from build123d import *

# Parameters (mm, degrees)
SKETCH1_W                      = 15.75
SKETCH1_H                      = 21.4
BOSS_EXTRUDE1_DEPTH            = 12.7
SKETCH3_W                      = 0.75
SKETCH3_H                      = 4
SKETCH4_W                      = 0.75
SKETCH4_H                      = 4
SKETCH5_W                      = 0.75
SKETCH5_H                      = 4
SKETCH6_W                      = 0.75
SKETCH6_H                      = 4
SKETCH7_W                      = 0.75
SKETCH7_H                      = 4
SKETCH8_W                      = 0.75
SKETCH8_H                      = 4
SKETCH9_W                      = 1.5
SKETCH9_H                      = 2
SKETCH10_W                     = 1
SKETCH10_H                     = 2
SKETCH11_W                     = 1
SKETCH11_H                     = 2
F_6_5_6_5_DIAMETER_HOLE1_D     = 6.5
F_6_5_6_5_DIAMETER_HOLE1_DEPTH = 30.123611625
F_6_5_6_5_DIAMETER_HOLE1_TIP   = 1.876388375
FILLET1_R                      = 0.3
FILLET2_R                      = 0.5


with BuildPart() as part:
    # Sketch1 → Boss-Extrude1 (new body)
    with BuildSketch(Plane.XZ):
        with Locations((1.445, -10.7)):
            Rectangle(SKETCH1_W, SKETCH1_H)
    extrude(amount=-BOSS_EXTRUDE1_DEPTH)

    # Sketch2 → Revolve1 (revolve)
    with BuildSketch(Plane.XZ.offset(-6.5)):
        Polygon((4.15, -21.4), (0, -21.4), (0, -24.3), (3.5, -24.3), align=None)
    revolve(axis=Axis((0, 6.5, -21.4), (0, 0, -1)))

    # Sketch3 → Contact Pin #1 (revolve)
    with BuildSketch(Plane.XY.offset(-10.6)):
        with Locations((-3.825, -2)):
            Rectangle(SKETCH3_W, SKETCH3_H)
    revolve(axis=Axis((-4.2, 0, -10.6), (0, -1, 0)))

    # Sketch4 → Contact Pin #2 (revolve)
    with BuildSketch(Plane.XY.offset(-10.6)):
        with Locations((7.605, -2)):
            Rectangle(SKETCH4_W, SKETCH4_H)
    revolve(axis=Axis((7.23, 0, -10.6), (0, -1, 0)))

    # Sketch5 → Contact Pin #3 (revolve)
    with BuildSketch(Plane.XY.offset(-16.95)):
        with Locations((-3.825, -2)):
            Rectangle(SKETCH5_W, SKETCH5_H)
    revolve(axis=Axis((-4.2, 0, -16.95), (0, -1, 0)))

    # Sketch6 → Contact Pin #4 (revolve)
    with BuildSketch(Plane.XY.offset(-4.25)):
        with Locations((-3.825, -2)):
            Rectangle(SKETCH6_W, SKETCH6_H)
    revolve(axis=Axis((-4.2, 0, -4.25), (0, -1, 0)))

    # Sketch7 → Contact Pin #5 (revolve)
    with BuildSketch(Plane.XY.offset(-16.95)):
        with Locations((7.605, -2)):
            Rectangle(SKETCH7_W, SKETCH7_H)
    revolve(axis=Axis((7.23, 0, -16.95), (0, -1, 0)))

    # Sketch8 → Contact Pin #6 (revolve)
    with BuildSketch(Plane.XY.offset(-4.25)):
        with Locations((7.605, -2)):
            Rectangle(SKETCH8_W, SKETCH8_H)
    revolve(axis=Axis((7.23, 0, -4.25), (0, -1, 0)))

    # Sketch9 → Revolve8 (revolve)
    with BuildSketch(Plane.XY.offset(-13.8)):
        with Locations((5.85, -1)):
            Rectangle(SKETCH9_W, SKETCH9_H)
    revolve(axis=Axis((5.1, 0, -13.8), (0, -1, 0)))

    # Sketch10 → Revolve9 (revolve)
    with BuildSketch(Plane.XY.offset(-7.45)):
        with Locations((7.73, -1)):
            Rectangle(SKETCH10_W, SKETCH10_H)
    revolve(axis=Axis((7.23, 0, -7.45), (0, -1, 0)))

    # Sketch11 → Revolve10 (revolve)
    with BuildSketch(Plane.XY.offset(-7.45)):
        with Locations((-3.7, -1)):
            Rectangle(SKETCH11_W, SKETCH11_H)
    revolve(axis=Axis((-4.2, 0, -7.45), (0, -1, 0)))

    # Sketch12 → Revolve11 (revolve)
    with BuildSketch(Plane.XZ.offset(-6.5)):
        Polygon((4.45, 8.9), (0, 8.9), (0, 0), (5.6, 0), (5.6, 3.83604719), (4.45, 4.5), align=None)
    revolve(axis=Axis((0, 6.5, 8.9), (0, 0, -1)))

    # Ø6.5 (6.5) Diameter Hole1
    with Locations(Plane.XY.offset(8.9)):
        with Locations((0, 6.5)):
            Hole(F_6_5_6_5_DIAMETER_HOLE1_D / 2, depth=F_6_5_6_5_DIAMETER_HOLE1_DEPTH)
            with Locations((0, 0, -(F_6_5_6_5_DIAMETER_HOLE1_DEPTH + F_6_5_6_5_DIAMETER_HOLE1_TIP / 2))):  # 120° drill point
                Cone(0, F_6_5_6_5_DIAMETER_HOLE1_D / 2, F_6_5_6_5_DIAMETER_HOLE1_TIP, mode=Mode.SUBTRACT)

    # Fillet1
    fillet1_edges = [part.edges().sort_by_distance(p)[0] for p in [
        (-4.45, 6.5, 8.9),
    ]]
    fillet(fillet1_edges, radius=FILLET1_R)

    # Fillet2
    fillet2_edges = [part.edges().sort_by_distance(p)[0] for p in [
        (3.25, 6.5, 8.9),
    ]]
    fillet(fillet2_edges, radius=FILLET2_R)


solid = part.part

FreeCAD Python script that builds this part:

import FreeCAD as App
import Part
import Sketcher
from FreeCAD import Vector
Q = App.Units.Quantity


def edges_at(feature, points):
    """Names of the edges that pass closest to the given points."""
    edges = feature.Shape.Edges
    near = lambda p: min(range(len(edges)), key=lambda i: edges[i].distToShape(Part.Vertex(*p))[0])
    return sorted({f"Edge{near(p) + 1}" for p in points})


def add_polygon(sketch, points):
    """Adds a closed chain of lines whose ends are joined by coincident constraints."""
    first, n = sketch.GeometryCount, len(points)
    for a, b in zip(points, points[1:] + points[:1]):
        sketch.addGeometry(Part.LineSegment(App.Vector(*a, 0), App.Vector(*b, 0)), False)
    for i in range(n):
        sketch.addConstraint(Sketcher.Constraint("Coincident", first + i, 2, first + (i + 1) % n, 1))

doc = App.newDocument("Part")
params = doc.addObject("Spreadsheet::Sheet", "Params")
for row, (alias, value) in enumerate([
    ("sketch1_height", "21.4 mm"),
    ("sketch1_width", "15.75 mm"),
    ("pad1_length", "12.7 mm"),
    ("sketch2_width", "3.5 mm"),
    ("sketch2_height", "2.9 mm"),
    ("sketch2_width2", "4.15 mm"),
    ("revolution_angle", "360 deg"),
    ("sketch3_height", "4 mm"),
    ("sketch3_width", "0.75 mm"),
    ("revolution2_angle", "360 deg"),
    ("sketch4_height", "4 mm"),
    ("sketch4_width", "0.75 mm"),
    ("revolution3_angle", "360 deg"),
    ("sketch5_height", "4 mm"),
    ("sketch5_width", "0.75 mm"),
    ("revolution4_angle", "360 deg"),
    ("sketch6_height", "4 mm"),
    ("sketch6_width", "0.75 mm"),
    ("revolution5_angle", "360 deg"),
    ("sketch7_height", "4 mm"),
    ("sketch7_width", "0.75 mm"),
    ("revolution6_angle", "360 deg"),
    ("sketch8_height", "4 mm"),
    ("sketch8_width", "0.75 mm"),
    ("revolution7_angle", "360 deg"),
    ("sketch9_height", "2 mm"),
    ("sketch9_width", "1.5 mm"),
    ("revolution8_angle", "360 deg"),
    ("sketch10_width", "1 mm"),
    ("sketch10_height", "2 mm"),
    ("revolution9_angle", "360 deg"),
    ("sketch11_width", "1 mm"),
    ("sketch11_height", "2 mm"),
    ("revolution10_angle", "360 deg"),
    ("sketch12_width", "5.6 mm"),
    ("sketch12_height", "8.9 mm"),
    ("sketch12_height2", "4.4 mm"),
    ("sketch12_width2", "4.45 mm"),
    ("revolution11_angle", "360 deg"),
    ("sketch13_diameter", "6.5 mm"),
    ("hole_diameter", "6.5 mm"),
    ("hole_depth", "30.123612 mm"),
    ("fillet_radius", "0.3 mm"),
    ("fillet2_radius", "0.5 mm"),
], start=1):
    params.set(f"A{row}", alias)
    params.set(f"B{row}", "=" + value)
    params.setAlias(f"B{row}", alias)

body = doc.addObject("PartDesign::Body", "Body")

sketch1 = body.newObject("Sketcher::SketchObject", "Sketch")
sketch1.AttachmentSupport = (doc.getObject("XZ_Plane"), [""])
sketch1.MapMode = "FlatFace"
add_polygon(sketch1, [(-6, 0), (-6, -21), (9, -21), (9, 0)])
sketch1.addConstraint([
    Sketcher.Constraint("Vertical", 0),
    Sketcher.Constraint("Horizontal", 1),
    Sketcher.Constraint("Vertical", 2),
    Sketcher.Constraint("Horizontal", 3),
    Sketcher.Constraint("PointOnObject", 2, 2, -1),
    Sketcher.Constraint("DistanceY", 0, 2, 0, 1, 21.4),
    Sketcher.Constraint("DistanceX", 1, 1, 1, 2, 15.75),
    Sketcher.Constraint("DistanceX", 0, 2, -1, 1, 6.43),
])
sketch1.setExpression("Constraints[9]", "Params.sketch1_height")
sketch1.setExpression("Constraints[10]", "Params.sketch1_width")
pad1 = body.newObject("PartDesign::Pad", "Pad")
pad1.Profile = sketch1
pad1.setExpression("Length", "Params.pad1_length")
pad1.Reversed = True

sketch2 = body.newObject("Sketcher::SketchObject", "Sketch001")
sketch2.AttachmentSupport = (doc.getObject("XZ_Plane"), [""])
sketch2.MapMode = "FlatFace"
sketch2.AttachmentOffset = App.Placement(Vector(0, 0, -6.5), App.Rotation())
add_polygon(sketch2, [(4.2, -21.4), (0, -21.4), (0, -24.3), (3.5, -24.3)])
sketch2.addConstraint([
    Sketcher.Constraint("Horizontal", 0),
    Sketcher.Constraint("Vertical", 1),
    Sketcher.Constraint("Horizontal", 2),
    Sketcher.Constraint("PointOnObject", 0, 2, -2),
    Sketcher.Constraint("DistanceX", 2, 1, 2, 2, 3.5),
    Sketcher.Constraint("DistanceY", 1, 2, 1, 1, 2.9),
    Sketcher.Constraint("DistanceX", 0, 2, 0, 1, 4.15),
    Sketcher.Constraint("DistanceY", 0, 2, -1, 1, 21.4),
])
sketch2.setExpression("Constraints[8]", "Params.sketch2_width")
sketch2.setExpression("Constraints[9]", "Params.sketch2_height")
sketch2.setExpression("Constraints[10]", "Params.sketch2_width2")
revolution = body.newObject("PartDesign::Revolution", "Revolution")
revolution.Profile = sketch2
revolution.ReferenceAxis = (sketch2, ["V_Axis"])
revolution.setExpression("Angle", "Params.revolution_angle")

sketch3 = body.newObject("Sketcher::SketchObject", "Sketch002")
sketch3.AttachmentSupport = (doc.getObject("XY_Plane"), [""])
sketch3.MapMode = "FlatFace"
sketch3.AttachmentOffset = App.Placement(Vector(0, 0, -10.6), App.Rotation())
add_polygon(sketch3, [(-4.2, 0), (-4.2, -4), (-3.5, -4), (-3.5, 0)])
sketch3.addGeometry(Part.LineSegment(Vector(-4.2, 0, 0), Vector(-4.2, -4, 0)), True)
sketch3.addConstraint([
    Sketcher.Constraint("Vertical", 0),
    Sketcher.Constraint("Horizontal", 1),
    Sketcher.Constraint("Vertical", 2),
    Sketcher.Constraint("Horizontal", 3),
    Sketcher.Constraint("Vertical", 4),
    Sketcher.Constraint("Coincident", 4, 1, 3, 2),
    Sketcher.Constraint("PointOnObject", 2, 2, -1),
    Sketcher.Constraint("Horizontal", 1, 2, 4, 2),
    Sketcher.Constraint("DistanceY", 0, 2, 0, 1, 4.0),
    Sketcher.Constraint("DistanceX", 1, 1, 1, 2, 0.75),
    Sketcher.Constraint("DistanceX", 0, 2, -1, 1, 4.2),
])
sketch3.setExpression("Constraints[12]", "Params.sketch3_height")
sketch3.setExpression("Constraints[13]", "Params.sketch3_width")
revolution2 = body.newObject("PartDesign::Revolution", "Revolution001")
revolution2.Profile = sketch3
revolution2.ReferenceAxis = (sketch3, ["Axis0"])
revolution2.setExpression("Angle", "Params.revolution2_angle")

sketch4 = body.newObject("Sketcher::SketchObject", "Sketch003")
sketch4.AttachmentSupport = (doc.getObject("XY_Plane"), [""])
sketch4.MapMode = "FlatFace"
sketch4.AttachmentOffset = App.Placement(Vector(0, 0, -10.6), App.Rotation())
add_polygon(sketch4, [(7.2, 0), (7.2, -4), (8, -4), (8, 0)])
sketch4.addGeometry(Part.LineSegment(Vector(7.2, 0, 0), Vector(7.2, -4, 0)), True)
sketch4.addConstraint([
    Sketcher.Constraint("Vertical", 0),
    Sketcher.Constraint("Horizontal", 1),
    Sketcher.Constraint("Vertical", 2),
    Sketcher.Constraint("Horizontal", 3),
    Sketcher.Constraint("Vertical", 4),
    Sketcher.Constraint("Coincident", 4, 1, 3, 2),
    Sketcher.Constraint("PointOnObject", 2, 2, -1),
    Sketcher.Constraint("Horizontal", 1, 2, 4, 2),
    Sketcher.Constraint("DistanceY", 0, 2, 0, 1, 4.0),
    Sketcher.Constraint("DistanceX", 1, 1, 1, 2, 0.75),
    Sketcher.Constraint("DistanceX", -1, 1, 0, 2, 7.23),
])
sketch4.setExpression("Constraints[12]", "Params.sketch4_height")
sketch4.setExpression("Constraints[13]", "Params.sketch4_width")
revolution3 = body.newObject("PartDesign::Revolution", "Revolution002")
revolution3.Profile = sketch4
revolution3.ReferenceAxis = (sketch4, ["Axis0"])
revolution3.setExpression("Angle", "Params.revolution3_angle")

sketch5 = body.newObject("Sketcher::SketchObject", "Sketch004")
sketch5.AttachmentSupport = (doc.getObject("XY_Plane"), [""])
sketch5.MapMode = "FlatFace"
sketch5.AttachmentOffset = App.Placement(Vector(0, 0, -16.95), App.Rotation())
add_polygon(sketch5, [(-4.2, 0), (-4.2, -4), (-3.5, -4), (-3.5, 0)])
sketch5.addGeometry(Part.LineSegment(Vector(-4.2, 0, 0), Vector(-4.2, -4, 0)), True)
sketch5.addConstraint([
    Sketcher.Constraint("Vertical", 0),
    Sketcher.Constraint("Horizontal", 1),
    Sketcher.Constraint("Vertical", 2),
    Sketcher.Constraint("Horizontal", 3),
    Sketcher.Constraint("Vertical", 4),
    Sketcher.Constraint("Coincident", 4, 1, 3, 2),
    Sketcher.Constraint("PointOnObject", 2, 2, -1),
    Sketcher.Constraint("Horizontal", 1, 2, 4, 2),
    Sketcher.Constraint("DistanceY", 0, 2, 0, 1, 4.0),
    Sketcher.Constraint("DistanceX", 1, 1, 1, 2, 0.75),
    Sketcher.Constraint("DistanceX", 0, 2, -1, 1, 4.2),
])
sketch5.setExpression("Constraints[12]", "Params.sketch5_height")
sketch5.setExpression("Constraints[13]", "Params.sketch5_width")
revolution4 = body.newObject("PartDesign::Revolution", "Revolution003")
revolution4.Profile = sketch5
revolution4.ReferenceAxis = (sketch5, ["Axis0"])
revolution4.setExpression("Angle", "Params.revolution4_angle")

sketch6 = body.newObject("Sketcher::SketchObject", "Sketch005")
sketch6.AttachmentSupport = (doc.getObject("XY_Plane"), [""])
sketch6.MapMode = "FlatFace"
sketch6.AttachmentOffset = App.Placement(Vector(0, 0, -4.25), App.Rotation())
add_polygon(sketch6, [(-4.2, 0), (-4.2, -4), (-3.5, -4), (-3.5, 0)])
sketch6.addGeometry(Part.LineSegment(Vector(-4.2, 0, 0), Vector(-4.2, -4, 0)), True)
sketch6.addConstraint([
    Sketcher.Constraint("Vertical", 0),
    Sketcher.Constraint("Horizontal", 1),
    Sketcher.Constraint("Vertical", 2),
    Sketcher.Constraint("Horizontal", 3),
    Sketcher.Constraint("Vertical", 4),
    Sketcher.Constraint("Coincident", 4, 1, 3, 2),
    Sketcher.Constraint("PointOnObject", 2, 2, -1),
    Sketcher.Constraint("Horizontal", 1, 2, 4, 2),
    Sketcher.Constraint("DistanceY", 0, 2, 0, 1, 4.0),
    Sketcher.Constraint("DistanceX", 1, 1, 1, 2, 0.75),
    Sketcher.Constraint("DistanceX", 0, 2, -1, 1, 4.2),
])
sketch6.setExpression("Constraints[12]", "Params.sketch6_height")
sketch6.setExpression("Constraints[13]", "Params.sketch6_width")
revolution5 = body.newObject("PartDesign::Revolution", "Revolution004")
revolution5.Profile = sketch6
revolution5.ReferenceAxis = (sketch6, ["Axis0"])
revolution5.setExpression("Angle", "Params.revolution5_angle")

sketch7 = body.newObject("Sketcher::SketchObject", "Sketch006")
sketch7.AttachmentSupport = (doc.getObject("XY_Plane"), [""])
sketch7.MapMode = "FlatFace"
sketch7.AttachmentOffset = App.Placement(Vector(0, 0, -16.95), App.Rotation())
add_polygon(sketch7, [(7.2, 0), (7.2, -4), (8, -4), (8, 0)])
sketch7.addGeometry(Part.LineSegment(Vector(7.2, 0, 0), Vector(7.2, -4, 0)), True)
sketch7.addConstraint([
    Sketcher.Constraint("Vertical", 0),
    Sketcher.Constraint("Horizontal", 1),
    Sketcher.Constraint("Vertical", 2),
    Sketcher.Constraint("Horizontal", 3),
    Sketcher.Constraint("Vertical", 4),
    Sketcher.Constraint("Coincident", 4, 1, 3, 2),
    Sketcher.Constraint("PointOnObject", 2, 2, -1),
    Sketcher.Constraint("Horizontal", 1, 2, 4, 2),
    Sketcher.Constraint("DistanceY", 0, 2, 0, 1, 4.0),
    Sketcher.Constraint("DistanceX", 1, 1, 1, 2, 0.75),
    Sketcher.Constraint("DistanceX", -1, 1, 0, 2, 7.23),
])
sketch7.setExpression("Constraints[12]", "Params.sketch7_height")
sketch7.setExpression("Constraints[13]", "Params.sketch7_width")
revolution6 = body.newObject("PartDesign::Revolution", "Revolution005")
revolution6.Profile = sketch7
revolution6.ReferenceAxis = (sketch7, ["Axis0"])
revolution6.setExpression("Angle", "Params.revolution6_angle")

sketch8 = body.newObject("Sketcher::SketchObject", "Sketch007")
sketch8.AttachmentSupport = (doc.getObject("XY_Plane"), [""])
sketch8.MapMode = "FlatFace"
sketch8.AttachmentOffset = App.Placement(Vector(0, 0, -4.25), App.Rotation())
add_polygon(sketch8, [(7.2, 0), (7.2, -4), (8, -4), (8, 0)])
sketch8.addGeometry(Part.LineSegment(Vector(7.2, 0, 0), Vector(7.2, -4, 0)), True)
sketch8.addConstraint([
    Sketcher.Constraint("Vertical", 0),
    Sketcher.Constraint("Horizontal", 1),
    Sketcher.Constraint("Vertical", 2),
    Sketcher.Constraint("Horizontal", 3),
    Sketcher.Constraint("Vertical", 4),
    Sketcher.Constraint("Coincident", 4, 1, 3, 2),
    Sketcher.Constraint("PointOnObject", 2, 2, -1),
    Sketcher.Constraint("Horizontal", 1, 2, 4, 2),
    Sketcher.Constraint("DistanceY", 0, 2, 0, 1, 4.0),
    Sketcher.Constraint("DistanceX", 1, 1, 1, 2, 0.75),
    Sketcher.Constraint("DistanceX", -1, 1, 0, 2, 7.23),
])
sketch8.setExpression("Constraints[12]", "Params.sketch8_height")
sketch8.setExpression("Constraints[13]", "Params.sketch8_width")
revolution7 = body.newObject("PartDesign::Revolution", "Revolution006")
revolution7.Profile = sketch8
revolution7.ReferenceAxis = (sketch8, ["Axis0"])
revolution7.setExpression("Angle", "Params.revolution7_angle")

sketch9 = body.newObject("Sketcher::SketchObject", "Sketch008")
sketch9.AttachmentSupport = (doc.getObject("XY_Plane"), [""])
sketch9.MapMode = "FlatFace"
sketch9.AttachmentOffset = App.Placement(Vector(0, 0, -13.8), App.Rotation())
add_polygon(sketch9, [(5.1, 0), (5.1, -2), (6.6, -2), (6.6, 0)])
sketch9.addGeometry(Part.LineSegment(Vector(5.1, 0, 0), Vector(5.1, -2, 0)), True)
sketch9.addConstraint([
    Sketcher.Constraint("Vertical", 0),
    Sketcher.Constraint("Horizontal", 1),
    Sketcher.Constraint("Vertical", 2),
    Sketcher.Constraint("Horizontal", 3),
    Sketcher.Constraint("Vertical", 4),
    Sketcher.Constraint("Coincident", 4, 1, 3, 2),
    Sketcher.Constraint("PointOnObject", 2, 2, -1),
    Sketcher.Constraint("Horizontal", 1, 2, 4, 2),
    Sketcher.Constraint("DistanceY", 0, 2, 0, 1, 2.0),
    Sketcher.Constraint("DistanceX", 1, 1, 1, 2, 1.5),
    Sketcher.Constraint("DistanceX", -1, 1, 0, 2, 5.1),
])
sketch9.setExpression("Constraints[12]", "Params.sketch9_height")
sketch9.setExpression("Constraints[13]", "Params.sketch9_width")
revolution8 = body.newObject("PartDesign::Revolution", "Revolution007")
revolution8.Profile = sketch9
revolution8.ReferenceAxis = (sketch9, ["Axis0"])
revolution8.setExpression("Angle", "Params.revolution8_angle")

sketch10 = body.newObject("Sketcher::SketchObject", "Sketch009")
sketch10.AttachmentSupport = (doc.getObject("XY_Plane"), [""])
sketch10.MapMode = "FlatFace"
sketch10.AttachmentOffset = App.Placement(Vector(0, 0, -7.45), App.Rotation())
add_polygon(sketch10, [(7.2, 0), (7.2, -2), (8.2, -2), (8.2, 0)])
sketch10.addGeometry(Part.LineSegment(Vector(7.2, 0, 0), Vector(7.2, -2, 0)), True)
sketch10.addConstraint([
    Sketcher.Constraint("Vertical", 0),
    Sketcher.Constraint("Horizontal", 1),
    Sketcher.Constraint("Vertical", 2),
    Sketcher.Constraint("Horizontal", 3),
    Sketcher.Constraint("Vertical", 4),
    Sketcher.Constraint("Coincident", 4, 1, 3, 2),
    Sketcher.Constraint("PointOnObject", 2, 2, -1),
    Sketcher.Constraint("Horizontal", 1, 2, 4, 2),
    Sketcher.Constraint("DistanceX", 1, 1, 1, 2, 1.0),
    Sketcher.Constraint("DistanceY", 0, 2, 0, 1, 2.0),
    Sketcher.Constraint("DistanceX", -1, 1, 0, 2, 7.23),
])
sketch10.setExpression("Constraints[12]", "Params.sketch10_width")
sketch10.setExpression("Constraints[13]", "Params.sketch10_height")
revolution9 = body.newObject("PartDesign::Revolution", "Revolution008")
revolution9.Profile = sketch10
revolution9.ReferenceAxis = (sketch10, ["Axis0"])
revolution9.setExpression("Angle", "Params.revolution9_angle")

sketch11 = body.newObject("Sketcher::SketchObject", "Sketch010")
sketch11.AttachmentSupport = (doc.getObject("XY_Plane"), [""])
sketch11.MapMode = "FlatFace"
sketch11.AttachmentOffset = App.Placement(Vector(0, 0, -7.45), App.Rotation())
add_polygon(sketch11, [(-4.2, 0), (-4.2, -2), (-3.2, -2), (-3.2, 0)])
sketch11.addGeometry(Part.LineSegment(Vector(-4.2, 0, 0), Vector(-4.2, -2, 0)), True)
sketch11.addConstraint([
    Sketcher.Constraint("Vertical", 0),
    Sketcher.Constraint("Horizontal", 1),
    Sketcher.Constraint("Vertical", 2),
    Sketcher.Constraint("Horizontal", 3),
    Sketcher.Constraint("Vertical", 4),
    Sketcher.Constraint("Coincident", 4, 1, 3, 2),
    Sketcher.Constraint("PointOnObject", 2, 2, -1),
    Sketcher.Constraint("Horizontal", 1, 2, 4, 2),
    Sketcher.Constraint("DistanceX", 1, 1, 1, 2, 1.0),
    Sketcher.Constraint("DistanceY", 0, 2, 0, 1, 2.0),
    Sketcher.Constraint("DistanceX", 0, 2, -1, 1, 4.2),
])
sketch11.setExpression("Constraints[12]", "Params.sketch11_width")
sketch11.setExpression("Constraints[13]", "Params.sketch11_height")
revolution10 = body.newObject("PartDesign::Revolution", "Revolution009")
revolution10.Profile = sketch11
revolution10.ReferenceAxis = (sketch11, ["Axis0"])
revolution10.setExpression("Angle", "Params.revolution10_angle")

sketch12 = body.newObject("Sketcher::SketchObject", "Sketch011")
sketch12.AttachmentSupport = (doc.getObject("XZ_Plane"), [""])
sketch12.MapMode = "FlatFace"
sketch12.AttachmentOffset = App.Placement(Vector(0, 0, -6.5), App.Rotation())
add_polygon(sketch12, [(4.5, 8.9), (0, 8.9), (0, 0), (5.6, 0), (5.6, 3.8), (4.5, 4.5)])
sketch12.addConstraint([
    Sketcher.Constraint("Horizontal", 0),
    Sketcher.Constraint("Vertical", 1),
    Sketcher.Constraint("Horizontal", 2),
    Sketcher.Constraint("Vertical", 3),
    Sketcher.Constraint("Vertical", 5),
    Sketcher.Constraint("Coincident", 1, 2, -1, 1),
    Sketcher.Constraint("Angle", 4, Q("150 deg")),
    Sketcher.Constraint("DistanceX", 2, 1, 2, 2, 5.6),
    Sketcher.Constraint("DistanceY", 1, 2, 1, 1, 8.9),
    Sketcher.Constraint("DistanceY", 5, 1, 5, 2, 4.4),
    Sketcher.Constraint("DistanceX", 0, 2, 0, 1, 4.45),
])
sketch12.setExpression("Constraints[13]", "Params.sketch12_width")
sketch12.setExpression("Constraints[14]", "Params.sketch12_height")
sketch12.setExpression("Constraints[15]", "Params.sketch12_height2")
sketch12.setExpression("Constraints[16]", "Params.sketch12_width2")
revolution11 = body.newObject("PartDesign::Revolution", "Revolution010")
revolution11.Profile = sketch12
revolution11.ReferenceAxis = (sketch12, ["V_Axis"])
revolution11.setExpression("Angle", "Params.revolution11_angle")

sketch13 = body.newObject("Sketcher::SketchObject", "Sketch012")
sketch13.AttachmentSupport = (doc.getObject("XY_Plane"), [""])
sketch13.MapMode = "FlatFace"
sketch13.AttachmentOffset = App.Placement(Vector(0, 0, 8.9), App.Rotation())
sketch13.addGeometry(Part.Circle(Vector(0, 6.5, 0), Vector(0, 0, 1), 3.2), False)
sketch13.addConstraint([
    Sketcher.Constraint("PointOnObject", 0, 3, -2),
    Sketcher.Constraint("Diameter", 0, 6.5),
    Sketcher.Constraint("DistanceY", -1, 1, 0, 3, 6.5),
])
sketch13.setExpression("Constraints[1]", "Params.sketch13_diameter")
doc.recompute()
hole = body.newObject("PartDesign::Hole", "Hole")
hole.Profile = sketch13
hole.ThreadType = "None"
hole.setExpression("Diameter", "Params.hole_diameter")
hole.DepthType = "Dimension"
hole.setExpression("Depth", "Params.hole_depth")
hole.DrillPoint = "Angled"
hole.DrillPointAngle = 120
doc.recompute()

fillet = body.newObject("PartDesign::Fillet", "Fillet")
fillet.Base = (hole, edges_at(hole, [(-4.45, 6.5, 8.9)]))
fillet.setExpression("Radius", "Params.fillet_radius")
doc.recompute()

fillet2 = body.newObject("PartDesign::Fillet", "Fillet001")
fillet2.Base = (fillet, edges_at(fillet, [(3.25, 6.5, 8.9)]))
fillet2.setExpression("Radius", "Params.fillet2_radius")

doc.recompute()
